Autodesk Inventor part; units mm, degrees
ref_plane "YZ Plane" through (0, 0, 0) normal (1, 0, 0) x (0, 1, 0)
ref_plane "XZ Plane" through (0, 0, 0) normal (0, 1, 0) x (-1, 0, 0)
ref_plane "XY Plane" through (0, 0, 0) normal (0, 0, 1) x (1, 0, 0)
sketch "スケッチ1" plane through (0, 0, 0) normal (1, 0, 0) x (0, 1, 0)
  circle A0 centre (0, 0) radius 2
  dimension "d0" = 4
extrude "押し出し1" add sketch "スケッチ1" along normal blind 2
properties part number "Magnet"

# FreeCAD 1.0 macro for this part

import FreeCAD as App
import Part
import Sketcher
from FreeCAD import Vector
Q = App.Units.Quantity

doc = App.newDocument("Part")
body = doc.addObject("PartDesign::Body", "Body")

sketch1 = body.newObject("Sketcher::SketchObject", "Sketch")
sketch1.AttachmentSupport = (doc.getObject("YZ_Plane"), [""])
sketch1.MapMode = "FlatFace"
sketch1.addGeometry(Part.Circle(Vector(0, 0, 0), Vector(0, 0, 1), 2), False)
sketch1.addConstraint([
    Sketcher.Constraint("Coincident", 0, 3, -1, 1),
    Sketcher.Constraint("Diameter", 0, Q("4 mm")),
])
pad1 = body.newObject("PartDesign::Pad", "Pad")
pad1.Profile = sketch1
pad1.Length = 2

doc.recompute()
